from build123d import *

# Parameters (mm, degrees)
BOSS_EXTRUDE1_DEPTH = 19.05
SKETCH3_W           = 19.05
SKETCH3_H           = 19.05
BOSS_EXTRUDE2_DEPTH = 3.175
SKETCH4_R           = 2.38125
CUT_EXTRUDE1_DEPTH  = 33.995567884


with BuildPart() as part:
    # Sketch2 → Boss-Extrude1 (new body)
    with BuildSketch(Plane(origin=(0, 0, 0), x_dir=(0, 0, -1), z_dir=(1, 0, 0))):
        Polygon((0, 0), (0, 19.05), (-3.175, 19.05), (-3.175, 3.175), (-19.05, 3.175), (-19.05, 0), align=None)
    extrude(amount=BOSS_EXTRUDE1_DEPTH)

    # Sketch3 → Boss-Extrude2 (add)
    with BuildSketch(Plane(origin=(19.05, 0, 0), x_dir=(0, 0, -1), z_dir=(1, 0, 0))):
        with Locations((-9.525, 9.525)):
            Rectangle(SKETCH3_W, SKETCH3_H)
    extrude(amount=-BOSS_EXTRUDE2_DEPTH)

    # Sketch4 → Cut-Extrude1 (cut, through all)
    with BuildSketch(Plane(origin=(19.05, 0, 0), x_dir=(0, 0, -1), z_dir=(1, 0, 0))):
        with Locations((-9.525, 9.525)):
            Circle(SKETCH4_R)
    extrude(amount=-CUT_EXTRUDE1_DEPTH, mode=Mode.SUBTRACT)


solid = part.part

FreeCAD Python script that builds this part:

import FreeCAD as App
import Part
import Sketcher
from FreeCAD import Vector
Q = App.Units.Quantity

doc = App.newDocument("Part")
body = doc.addObject("PartDesign::Body", "Body")

# Sketch on YZ plane
sketch1 = body.newObject("Sketcher::SketchObject", "Sketch")
sketch1.AttachmentSupport = (doc.getObject("YZ_Plane"), [""])
sketch1.MapMode = "FlatFace"
sketch1.addGeometry([
    Part.LineSegment(Vector(0, 0, 0), Vector(19.1, 0, 0)),  # 0
    Part.LineSegment(Vector(19.1, 0, 0), Vector(19.1, 3.2, 0)),  # 1
    Part.LineSegment(Vector(19.1, 3.2, 0), Vector(3.2, 3.2, 0)),  # 2
    Part.LineSegment(Vector(3.2, 3.2, 0), Vector(3.2, 19.1, 0)),  # 3
    Part.LineSegment(Vector(3.2, 19.1, 0), Vector(0, 19.1, 0)),  # 4
    Part.LineSegment(Vector(0, 19.1, 0), Vector(0, 0, 0)),  # 5
], False)
sketch1.addConstraint([
    Sketcher.Constraint("Coincident", 0, 2, 1, 1),
    Sketcher.Constraint("Coincident", 1, 2, 2, 1),
    Sketcher.Constraint("Coincident", 2, 2, 3, 1),
    Sketcher.Constraint("Coincident", 3, 2, 4, 1),
    Sketcher.Constraint("Coincident", 4, 2, 5, 1),
    Sketcher.Constraint("Coincident", 5, 2, 0, 1),
    Sketcher.Constraint("Horizontal", 0),
    Sketcher.Constraint("Vertical", 1),
    Sketcher.Constraint("Horizontal", 2),
    Sketcher.Constraint("Vertical", 3),
    Sketcher.Constraint("Horizontal", 4),
    Sketcher.Constraint("Vertical", 5),
    Sketcher.Constraint("Coincident", 5, 2, -1, 1),
    Sketcher.Constraint("Equal", 4, 1),
    Sketcher.Constraint("Equal", 2, 3),
    Sketcher.Constraint("DistanceX", 0, 1, 0, 2, Q("0.75 in")),
    Sketcher.Constraint("DistanceX", 2, 2, 2, 1, Q("0.625 in")),
])
pad1 = body.newObject("PartDesign::Pad", "Pad")
pad1.Profile = sketch1
pad1.Length = Q("0.75 in")

# Sketch on YZ plane
sketch2 = body.newObject("Sketcher::SketchObject", "Sketch001")
sketch2.AttachmentSupport = (doc.getObject("YZ_Plane"), [""])
sketch2.MapMode = "FlatFace"
sketch2.AttachmentOffset = App.Placement(Vector(0, 0, 0.75 * 25.4), App.Rotation())
sketch2.addGeometry([
    Part.LineSegment(Vector(19, 19, 0), Vector(0, 19, 0)),
    Part.LineSegment(Vector(0, 19, 0), Vector(0, 0, 0)),
    Part.LineSegment(Vector(0, 0, 0), Vector(19, 0, 0)),
    Part.LineSegment(Vector(19, 0, 0), Vector(19, 19, 0)),
], False)
sketch2.addConstraint([
    Sketcher.Constraint("Coincident", 0, 2, 1, 1),
    Sketcher.Constraint("Coincident", 1, 2, 2, 1),
    Sketcher.Constraint("Coincident", 2, 2, 3, 1),
    Sketcher.Constraint("Coincident", 3, 2, 0, 1),
    Sketcher.Constraint("Horizontal", 0),
    Sketcher.Constraint("Vertical", 1),
    Sketcher.Constraint("Horizontal", 2),
    Sketcher.Constraint("Vertical", 3),
    Sketcher.Constraint("Coincident", 1, 2, -1, 1),
    Sketcher.Constraint("Equal", 2, 1),
    Sketcher.Constraint("DistanceX", 0, 2, 0, 1, Q("0.75 in")),
])
pad2 = body.newObject("PartDesign::Pad", "Pad001")
pad2.Profile = sketch2
pad2.Length = Q("0.125 in")
pad2.Reversed = True

# Sketch on YZ plane
sketch3 = body.newObject("Sketcher::SketchObject", "Sketch002")
sketch3.AttachmentSupport = (doc.getObject("YZ_Plane"), [""])
sketch3.MapMode = "FlatFace"
sketch3.AttachmentOffset = App.Placement(Vector(0, 0, 0.75 * 25.4), App.Rotation())
sketch3.addGeometry(Part.Circle(Vector(9.5, 9.5, 0), Vector(0, 0, 1), 2.4), False)
sketch3.addConstraint([
    Sketcher.Constraint("Diameter", 0, Q("0.1875 in")),
    Sketcher.Constraint("DistanceX", -1, 1, 0, 3, Q("0.375 in")),
    Sketcher.Constraint("DistanceY", -1, 1, 0, 3, Q("0.375 in")),
])
pocket1 = body.newObject("PartDesign::Pocket", "Pocket")
pocket1.Profile = sketch3
pocket1.Type = "ThroughAll"

doc.recompute()
